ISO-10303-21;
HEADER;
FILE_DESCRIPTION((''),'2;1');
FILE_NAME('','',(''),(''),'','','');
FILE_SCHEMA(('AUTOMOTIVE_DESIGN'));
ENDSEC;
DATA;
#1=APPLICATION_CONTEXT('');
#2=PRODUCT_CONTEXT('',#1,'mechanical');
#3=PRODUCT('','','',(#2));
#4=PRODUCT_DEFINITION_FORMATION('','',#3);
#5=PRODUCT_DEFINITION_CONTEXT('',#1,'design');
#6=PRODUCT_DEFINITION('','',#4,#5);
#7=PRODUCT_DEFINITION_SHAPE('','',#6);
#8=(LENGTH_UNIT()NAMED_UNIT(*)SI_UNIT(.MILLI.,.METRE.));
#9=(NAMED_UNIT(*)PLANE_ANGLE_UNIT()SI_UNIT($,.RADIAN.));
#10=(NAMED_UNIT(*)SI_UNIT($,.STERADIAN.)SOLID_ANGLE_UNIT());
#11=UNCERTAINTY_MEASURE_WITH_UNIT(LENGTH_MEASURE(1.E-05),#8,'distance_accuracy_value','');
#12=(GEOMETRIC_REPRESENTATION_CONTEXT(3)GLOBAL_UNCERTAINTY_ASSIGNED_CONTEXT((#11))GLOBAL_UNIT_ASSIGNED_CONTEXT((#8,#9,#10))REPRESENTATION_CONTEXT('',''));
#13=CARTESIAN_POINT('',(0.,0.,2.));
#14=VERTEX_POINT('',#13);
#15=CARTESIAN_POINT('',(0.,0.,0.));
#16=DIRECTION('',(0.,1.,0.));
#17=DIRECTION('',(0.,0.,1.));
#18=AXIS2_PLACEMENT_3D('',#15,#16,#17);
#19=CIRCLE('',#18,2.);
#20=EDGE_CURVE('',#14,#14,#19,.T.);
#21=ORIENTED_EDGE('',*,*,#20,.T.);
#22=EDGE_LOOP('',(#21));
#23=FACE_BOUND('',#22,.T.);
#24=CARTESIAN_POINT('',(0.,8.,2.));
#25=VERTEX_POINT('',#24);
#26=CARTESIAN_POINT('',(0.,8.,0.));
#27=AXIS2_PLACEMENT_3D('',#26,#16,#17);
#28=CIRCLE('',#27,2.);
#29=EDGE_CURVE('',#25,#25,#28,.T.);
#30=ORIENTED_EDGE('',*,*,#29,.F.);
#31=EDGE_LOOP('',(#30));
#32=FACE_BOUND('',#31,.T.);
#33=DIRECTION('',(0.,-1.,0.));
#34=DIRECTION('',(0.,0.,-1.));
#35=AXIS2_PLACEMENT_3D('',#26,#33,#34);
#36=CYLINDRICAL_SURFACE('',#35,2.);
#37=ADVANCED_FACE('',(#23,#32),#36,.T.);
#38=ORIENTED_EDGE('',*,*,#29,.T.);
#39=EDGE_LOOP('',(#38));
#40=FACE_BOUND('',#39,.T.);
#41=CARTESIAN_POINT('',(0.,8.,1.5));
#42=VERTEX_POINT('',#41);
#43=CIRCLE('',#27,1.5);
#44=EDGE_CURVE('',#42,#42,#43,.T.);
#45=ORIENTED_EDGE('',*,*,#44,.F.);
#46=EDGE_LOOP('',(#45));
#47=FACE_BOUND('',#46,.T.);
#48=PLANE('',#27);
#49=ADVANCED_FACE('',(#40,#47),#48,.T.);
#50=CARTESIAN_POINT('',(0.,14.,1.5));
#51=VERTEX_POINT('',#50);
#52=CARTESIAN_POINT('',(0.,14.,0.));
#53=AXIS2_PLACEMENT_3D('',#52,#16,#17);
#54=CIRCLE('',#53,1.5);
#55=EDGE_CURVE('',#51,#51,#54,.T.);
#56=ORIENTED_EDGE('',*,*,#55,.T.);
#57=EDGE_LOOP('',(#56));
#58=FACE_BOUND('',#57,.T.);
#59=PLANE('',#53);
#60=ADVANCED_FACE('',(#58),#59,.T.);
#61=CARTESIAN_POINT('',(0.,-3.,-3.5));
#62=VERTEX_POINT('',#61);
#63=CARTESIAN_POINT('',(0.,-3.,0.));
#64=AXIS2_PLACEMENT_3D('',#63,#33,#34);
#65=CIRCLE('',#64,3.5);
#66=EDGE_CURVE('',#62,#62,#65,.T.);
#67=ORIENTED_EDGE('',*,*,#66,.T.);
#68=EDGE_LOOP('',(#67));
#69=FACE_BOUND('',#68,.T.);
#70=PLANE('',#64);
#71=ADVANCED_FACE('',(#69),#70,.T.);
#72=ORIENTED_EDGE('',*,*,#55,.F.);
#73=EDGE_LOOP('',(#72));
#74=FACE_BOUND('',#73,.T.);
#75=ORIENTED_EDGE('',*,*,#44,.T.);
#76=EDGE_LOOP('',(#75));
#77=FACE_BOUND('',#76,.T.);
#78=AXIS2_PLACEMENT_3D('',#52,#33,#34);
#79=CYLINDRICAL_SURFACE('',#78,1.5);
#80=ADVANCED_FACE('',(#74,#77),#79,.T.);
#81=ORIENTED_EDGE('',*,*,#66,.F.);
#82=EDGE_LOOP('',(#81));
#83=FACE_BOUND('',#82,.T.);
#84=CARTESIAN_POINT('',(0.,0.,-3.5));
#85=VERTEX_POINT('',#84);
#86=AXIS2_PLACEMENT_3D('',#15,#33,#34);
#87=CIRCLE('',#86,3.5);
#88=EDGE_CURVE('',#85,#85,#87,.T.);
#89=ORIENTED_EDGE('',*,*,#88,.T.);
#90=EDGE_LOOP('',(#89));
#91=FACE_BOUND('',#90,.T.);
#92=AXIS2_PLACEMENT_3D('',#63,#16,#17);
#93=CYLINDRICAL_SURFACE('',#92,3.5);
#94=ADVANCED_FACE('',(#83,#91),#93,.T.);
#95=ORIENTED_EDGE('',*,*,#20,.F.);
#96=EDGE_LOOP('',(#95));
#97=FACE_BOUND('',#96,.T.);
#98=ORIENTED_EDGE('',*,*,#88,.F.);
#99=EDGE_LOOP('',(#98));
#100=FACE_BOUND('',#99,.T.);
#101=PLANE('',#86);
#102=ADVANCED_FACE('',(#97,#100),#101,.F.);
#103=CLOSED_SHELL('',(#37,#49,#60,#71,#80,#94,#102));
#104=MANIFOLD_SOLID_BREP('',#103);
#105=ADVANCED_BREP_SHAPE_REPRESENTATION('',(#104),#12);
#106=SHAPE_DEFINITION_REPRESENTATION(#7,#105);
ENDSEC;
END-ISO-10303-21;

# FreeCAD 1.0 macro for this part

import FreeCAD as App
import Part
import Sketcher

V = App.Vector

doc = App.newDocument("Part")
body = doc.addObject("PartDesign::Body", "Body")

sketch1 = body.newObject("Sketcher::SketchObject", "Sketch")
sketch1.AttachmentSupport = (doc.getObject("XZ_Plane"), [""])
sketch1.MapMode = "FlatFace"
sketch1.addGeometry(Part.Circle(V(0, 0, 0), V(0, 0, 1), 2), False)
sketch1.addConstraint([
    Sketcher.Constraint("Coincident", 0, 3, -1, 1),
    Sketcher.Constraint("Diameter", 0, 4.0),
])
pad1 = body.newObject("PartDesign::Pad", "Pad")
pad1.Profile = sketch1
pad1.Length = 8
pad1.Reversed = True

sketch2 = body.newObject("Sketcher::SketchObject", "Sketch001")
sketch2.AttachmentSupport = (doc.getObject("XZ_Plane"), [""])
sketch2.MapMode = "FlatFace"
sketch2.AttachmentOffset = App.Placement(V(0, 0, -8), App.Rotation())
sketch2.addGeometry(Part.Circle(V(0, 0, 0), V(0, 0, 1), 1.5), False)
sketch2.addConstraint([
    Sketcher.Constraint("Coincident", 0, 3, -1, 1),
    Sketcher.Constraint("Diameter", 0, 3.0),
])
pad2 = body.newObject("PartDesign::Pad", "Pad001")
pad2.Profile = sketch2
pad2.Length = 6
pad2.Reversed = True

sketch3 = body.newObject("Sketcher::SketchObject", "Sketch002")
sketch3.AttachmentSupport = (doc.getObject("XZ_Plane"), [""])
sketch3.MapMode = "FlatFace"
sketch3.addGeometry(Part.Circle(V(0, 0, 0), V(0, 0, 1), 3.5), False)
sketch3.addConstraint([
    Sketcher.Constraint("Coincident", 0, 3, -1, 1),
    Sketcher.Constraint("Diameter", 0, 7.0),
])
pad3 = body.newObject("PartDesign::Pad", "Pad002")
pad3.Profile = sketch3
pad3.Length = 3

doc.recompute()
